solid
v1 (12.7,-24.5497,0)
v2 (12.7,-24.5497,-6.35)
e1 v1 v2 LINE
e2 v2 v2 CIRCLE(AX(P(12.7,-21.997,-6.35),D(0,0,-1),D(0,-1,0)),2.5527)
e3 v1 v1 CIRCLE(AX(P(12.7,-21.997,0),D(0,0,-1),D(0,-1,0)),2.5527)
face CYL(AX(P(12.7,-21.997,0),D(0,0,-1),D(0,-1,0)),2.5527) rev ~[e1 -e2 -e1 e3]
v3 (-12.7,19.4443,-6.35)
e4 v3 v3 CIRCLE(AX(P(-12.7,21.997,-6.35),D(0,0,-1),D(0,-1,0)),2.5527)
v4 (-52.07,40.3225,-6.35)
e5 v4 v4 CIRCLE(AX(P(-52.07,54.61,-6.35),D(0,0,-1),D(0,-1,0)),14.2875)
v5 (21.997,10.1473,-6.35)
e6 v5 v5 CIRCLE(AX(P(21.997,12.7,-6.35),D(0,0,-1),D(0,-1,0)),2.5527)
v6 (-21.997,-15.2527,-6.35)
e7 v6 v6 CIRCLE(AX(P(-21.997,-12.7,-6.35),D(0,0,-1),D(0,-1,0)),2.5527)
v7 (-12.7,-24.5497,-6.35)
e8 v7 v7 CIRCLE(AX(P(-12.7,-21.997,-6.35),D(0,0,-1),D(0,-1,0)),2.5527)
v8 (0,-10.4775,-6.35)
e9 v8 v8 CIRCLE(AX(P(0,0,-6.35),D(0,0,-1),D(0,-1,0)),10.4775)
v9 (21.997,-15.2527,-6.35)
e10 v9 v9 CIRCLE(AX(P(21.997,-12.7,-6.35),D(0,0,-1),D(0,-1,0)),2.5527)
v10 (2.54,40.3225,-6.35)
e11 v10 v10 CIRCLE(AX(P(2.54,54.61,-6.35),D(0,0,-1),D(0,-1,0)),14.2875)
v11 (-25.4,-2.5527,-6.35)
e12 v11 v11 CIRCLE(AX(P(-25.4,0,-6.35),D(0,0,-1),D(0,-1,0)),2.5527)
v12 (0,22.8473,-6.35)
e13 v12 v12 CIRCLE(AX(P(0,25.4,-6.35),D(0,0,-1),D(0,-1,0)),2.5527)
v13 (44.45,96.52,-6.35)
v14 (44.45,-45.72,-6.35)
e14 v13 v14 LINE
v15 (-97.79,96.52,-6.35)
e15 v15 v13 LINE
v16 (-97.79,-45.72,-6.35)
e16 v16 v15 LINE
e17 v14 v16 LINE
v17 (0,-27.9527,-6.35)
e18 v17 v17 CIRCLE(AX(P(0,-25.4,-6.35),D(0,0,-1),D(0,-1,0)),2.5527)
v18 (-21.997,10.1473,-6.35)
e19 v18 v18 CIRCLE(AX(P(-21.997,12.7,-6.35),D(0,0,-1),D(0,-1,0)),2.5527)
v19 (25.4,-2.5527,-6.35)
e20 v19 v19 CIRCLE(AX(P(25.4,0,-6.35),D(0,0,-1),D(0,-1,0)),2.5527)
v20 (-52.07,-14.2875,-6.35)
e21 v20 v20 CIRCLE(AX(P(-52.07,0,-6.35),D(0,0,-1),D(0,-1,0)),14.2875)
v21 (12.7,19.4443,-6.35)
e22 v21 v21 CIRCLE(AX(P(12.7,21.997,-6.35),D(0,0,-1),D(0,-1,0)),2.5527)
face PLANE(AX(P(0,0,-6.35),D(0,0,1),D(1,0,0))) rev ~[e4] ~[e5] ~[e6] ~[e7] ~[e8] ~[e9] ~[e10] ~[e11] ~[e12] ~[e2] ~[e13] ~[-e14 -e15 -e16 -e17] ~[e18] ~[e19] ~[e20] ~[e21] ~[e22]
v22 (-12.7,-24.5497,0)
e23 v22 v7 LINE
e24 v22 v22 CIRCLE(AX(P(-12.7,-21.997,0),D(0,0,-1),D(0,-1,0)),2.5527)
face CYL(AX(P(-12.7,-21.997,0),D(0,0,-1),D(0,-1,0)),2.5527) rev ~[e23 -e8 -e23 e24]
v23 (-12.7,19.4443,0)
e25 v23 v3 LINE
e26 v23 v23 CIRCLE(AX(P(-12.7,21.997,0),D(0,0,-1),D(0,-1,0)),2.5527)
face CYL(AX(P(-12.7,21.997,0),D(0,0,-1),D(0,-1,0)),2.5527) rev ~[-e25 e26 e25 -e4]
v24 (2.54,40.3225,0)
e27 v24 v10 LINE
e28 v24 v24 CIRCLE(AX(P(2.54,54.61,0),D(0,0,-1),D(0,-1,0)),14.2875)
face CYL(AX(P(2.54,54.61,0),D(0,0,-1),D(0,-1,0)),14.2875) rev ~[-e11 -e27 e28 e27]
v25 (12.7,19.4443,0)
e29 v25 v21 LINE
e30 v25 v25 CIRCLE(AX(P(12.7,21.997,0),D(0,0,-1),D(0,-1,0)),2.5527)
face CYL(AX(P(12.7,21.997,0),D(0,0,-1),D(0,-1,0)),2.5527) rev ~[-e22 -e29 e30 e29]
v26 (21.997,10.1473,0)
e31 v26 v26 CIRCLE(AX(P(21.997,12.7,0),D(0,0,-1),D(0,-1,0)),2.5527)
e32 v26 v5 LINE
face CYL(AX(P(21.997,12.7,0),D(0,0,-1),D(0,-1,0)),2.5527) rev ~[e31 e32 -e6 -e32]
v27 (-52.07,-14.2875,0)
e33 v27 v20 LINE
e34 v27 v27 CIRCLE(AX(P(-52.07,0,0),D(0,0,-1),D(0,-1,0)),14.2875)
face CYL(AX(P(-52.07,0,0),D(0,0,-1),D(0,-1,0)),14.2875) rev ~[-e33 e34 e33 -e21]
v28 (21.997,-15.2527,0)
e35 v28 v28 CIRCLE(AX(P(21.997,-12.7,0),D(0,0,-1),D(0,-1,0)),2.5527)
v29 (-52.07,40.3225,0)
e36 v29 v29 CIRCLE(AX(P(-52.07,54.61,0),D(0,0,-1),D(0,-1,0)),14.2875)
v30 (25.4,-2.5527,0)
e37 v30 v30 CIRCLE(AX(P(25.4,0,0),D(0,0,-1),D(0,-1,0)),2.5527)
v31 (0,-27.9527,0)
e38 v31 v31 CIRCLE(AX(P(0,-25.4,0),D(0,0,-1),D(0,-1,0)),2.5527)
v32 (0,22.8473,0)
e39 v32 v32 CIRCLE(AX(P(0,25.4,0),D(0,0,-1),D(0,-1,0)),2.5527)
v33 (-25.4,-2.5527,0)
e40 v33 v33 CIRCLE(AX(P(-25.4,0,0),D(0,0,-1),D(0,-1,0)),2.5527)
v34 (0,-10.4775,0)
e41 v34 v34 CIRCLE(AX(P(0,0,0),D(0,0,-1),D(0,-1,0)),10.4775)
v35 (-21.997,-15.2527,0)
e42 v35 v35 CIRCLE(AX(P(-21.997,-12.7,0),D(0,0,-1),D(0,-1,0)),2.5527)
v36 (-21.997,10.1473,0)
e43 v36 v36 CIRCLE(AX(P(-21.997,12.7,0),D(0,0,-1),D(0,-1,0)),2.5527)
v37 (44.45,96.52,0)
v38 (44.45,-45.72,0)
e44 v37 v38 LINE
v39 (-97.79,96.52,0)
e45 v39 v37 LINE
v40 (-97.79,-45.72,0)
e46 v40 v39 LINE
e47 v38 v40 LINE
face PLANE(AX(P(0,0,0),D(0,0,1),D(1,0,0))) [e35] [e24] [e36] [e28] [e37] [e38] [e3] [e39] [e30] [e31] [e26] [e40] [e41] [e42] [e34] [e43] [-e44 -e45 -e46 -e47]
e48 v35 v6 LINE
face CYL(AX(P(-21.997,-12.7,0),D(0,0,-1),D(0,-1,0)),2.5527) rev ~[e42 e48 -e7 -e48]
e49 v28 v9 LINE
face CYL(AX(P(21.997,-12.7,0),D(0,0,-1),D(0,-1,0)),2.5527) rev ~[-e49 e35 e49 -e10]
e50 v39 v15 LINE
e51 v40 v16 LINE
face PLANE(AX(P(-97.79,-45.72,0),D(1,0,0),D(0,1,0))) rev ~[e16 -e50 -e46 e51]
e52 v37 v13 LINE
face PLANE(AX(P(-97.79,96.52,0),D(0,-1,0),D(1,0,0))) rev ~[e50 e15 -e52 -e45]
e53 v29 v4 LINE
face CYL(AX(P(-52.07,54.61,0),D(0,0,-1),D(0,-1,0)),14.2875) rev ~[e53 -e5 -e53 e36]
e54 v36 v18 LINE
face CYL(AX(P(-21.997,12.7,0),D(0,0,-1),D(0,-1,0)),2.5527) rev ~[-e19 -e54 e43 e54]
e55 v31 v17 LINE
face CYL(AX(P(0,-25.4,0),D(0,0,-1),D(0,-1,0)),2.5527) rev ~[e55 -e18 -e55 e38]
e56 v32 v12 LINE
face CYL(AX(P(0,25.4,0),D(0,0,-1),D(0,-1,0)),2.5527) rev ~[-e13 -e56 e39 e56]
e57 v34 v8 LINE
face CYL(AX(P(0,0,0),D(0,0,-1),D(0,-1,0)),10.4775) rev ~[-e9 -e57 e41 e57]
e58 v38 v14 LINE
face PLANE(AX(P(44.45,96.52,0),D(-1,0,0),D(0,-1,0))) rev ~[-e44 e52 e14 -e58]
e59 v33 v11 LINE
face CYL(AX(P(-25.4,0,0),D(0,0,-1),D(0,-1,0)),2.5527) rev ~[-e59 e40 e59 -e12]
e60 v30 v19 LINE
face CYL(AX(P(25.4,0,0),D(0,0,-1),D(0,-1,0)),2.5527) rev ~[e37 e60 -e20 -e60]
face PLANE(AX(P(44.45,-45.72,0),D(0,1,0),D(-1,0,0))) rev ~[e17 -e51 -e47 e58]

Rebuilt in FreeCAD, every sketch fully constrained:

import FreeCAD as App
import Part
import Sketcher

V = App.Vector
Q = App.Units.Quantity

doc = App.newDocument("Part")
params = doc.addObject("Spreadsheet::Sheet", "Params")
for row, (alias, value) in enumerate([
    ("sketch1_width", "5.6 in"),
    ("pad1_length", "0.25 in"),
    ("sketch2_diameter", "1.125 in"),
    ("hole_diameter", "1.125 in"),
    ("sketch3_diameter", "0.201 in"),
    ("hole2_diameter", "0.201 in"),
    ("sketch4_diameter", "0.825 in"),
    ("hole3_diameter", "0.825 in"),
], start=1):
    params.set(f"A{row}", alias)
    params.set(f"B{row}", "=" + value)
    params.setAlias(f"B{row}", alias)

body = doc.addObject("PartDesign::Body", "Body")

sketch1 = body.newObject("Sketcher::SketchObject", "Sketch")
sketch1.AttachmentSupport = (doc.getObject("XY_Plane"), [""])
sketch1.MapMode = "FlatFace"
sketch1.addGeometry([
    Part.LineSegment(V(44, 97, 0), V(-98, 97, 0)),
    Part.LineSegment(V(-98, 97, 0), V(-98, -46, 0)),
    Part.LineSegment(V(-98, -46, 0), V(44, -46, 0)),
    Part.LineSegment(V(44, -46, 0), V(44, 97, 0)),
], False)
sketch1.addConstraint([
    Sketcher.Constraint("Coincident", 0, 2, 1, 1),
    Sketcher.Constraint("Coincident", 1, 2, 2, 1),
    Sketcher.Constraint("Coincident", 2, 2, 3, 1),
    Sketcher.Constraint("Coincident", 3, 2, 0, 1),
    Sketcher.Constraint("Horizontal", 0),
    Sketcher.Constraint("Vertical", 1),
    Sketcher.Constraint("Horizontal", 2),
    Sketcher.Constraint("Vertical", 3),
    Sketcher.Constraint("Equal", 2, 1),
    Sketcher.Constraint("DistanceX", 0, 2, 0, 1, Q("5.6 in")),
    Sketcher.Constraint("DistanceY", -1, 1, 0, 2, Q("3.8 in")),
    Sketcher.Constraint("DistanceX", 0, 2, -1, 1, Q("3.85 in")),
])
sketch1.setExpression("Constraints[9]", "Params.sketch1_width")
pad1 = body.newObject("PartDesign::Pad", "Pad")
pad1.Profile = sketch1
pad1.setExpression("Length", "Params.pad1_length")
pad1.Reversed = True

sketch2 = body.newObject("Sketcher::SketchObject", "Sketch001")
sketch2.AttachmentSupport = (doc.getObject("XY_Plane"), [""])
sketch2.MapMode = "FlatFace"
sketch2.addGeometry([
    Part.Circle(V(-52, 0, 0), V(0, 0, 1), 14),
    Part.Circle(V(3, 55, 0), V(0, 0, 1), 14),
    Part.Circle(V(-52, 55, 0), V(0, 0, 1), 14),
], False)
sketch2.addConstraint([
    Sketcher.Constraint("Equal", 0, 1),
    Sketcher.Constraint("Equal", 1, 2),
    Sketcher.Constraint("PointOnObject", 0, 3, -1),
    Sketcher.Constraint("Horizontal", 1, 3, 2, 3),
    Sketcher.Constraint("Vertical", 0, 3, 2, 3),
    Sketcher.Constraint("Diameter", 0, Q("1.125 in")),
    Sketcher.Constraint("DistanceX", -1, 1, 1, 3, Q("0.1 in")),
    Sketcher.Constraint("DistanceX", 0, 3, -1, 1, Q("2.05 in")),
    Sketcher.Constraint("DistanceY", -1, 1, 1, 3, Q("2.15 in")),
])
sketch2.setExpression("Constraints[5]", "Params.sketch2_diameter")
doc.recompute()
hole = body.newObject("PartDesign::Hole", "Hole")
hole.Profile = sketch2
hole.ThreadType = "None"
hole.setExpression("Diameter", "Params.hole_diameter")
hole.DepthType = "ThroughAll"

sketch3 = body.newObject("Sketcher::SketchObject", "Sketch002")
sketch3.AttachmentSupport = (doc.getObject("XY_Plane"), [""])
sketch3.MapMode = "FlatFace"
sketch3.addGeometry([
    Part.Circle(V(25.4, 0, 0), V(0, 0, 1), 2.6),
    Part.Circle(V(22, 12.7, 0), V(0, 0, 1), 2.6),
    Part.Circle(V(12.7, 22, 0), V(0, 0, 1), 2.6),
    Part.Circle(V(0, 25.4, 0), V(0, 0, 1), 2.6),
    Part.Circle(V(-12.7, 22, 0), V(0, 0, 1), 2.6),
    Part.Circle(V(-22, 12.7, 0), V(0, 0, 1), 2.6),
    Part.Circle(V(-25.4, 0, 0), V(0, 0, 1), 2.6),
    Part.Circle(V(-22, -12.7, 0), V(0, 0, 1), 2.6),
    Part.Circle(V(-12.7, -22, 0), V(0, 0, 1), 2.6),
    Part.Circle(V(0, -25.4, 0), V(0, 0, 1), 2.6),
    Part.Circle(V(12.7, -22, 0), V(0, 0, 1), 2.6),
    Part.Circle(V(22, -12.7, 0), V(0, 0, 1), 2.6),
], False)
sketch3.addConstraint([
    Sketcher.Constraint("Equal", 0, 1),
    Sketcher.Constraint("Equal", 1, 2),
    Sketcher.Constraint("Equal", 2, 3),
    Sketcher.Constraint("Equal", 3, 4),
    Sketcher.Constraint("Equal", 4, 5),
    Sketcher.Constraint("Equal", 5, 6),
    Sketcher.Constraint("Equal", 6, 7),
    Sketcher.Constraint("Equal", 7, 8),
    Sketcher.Constraint("Equal", 8, 9),
    Sketcher.Constraint("Equal", 9, 10),
    Sketcher.Constraint("Equal", 10, 11),
    Sketcher.Constraint("Symmetric", 0, 3, 6, 3, -1, 1),
    Sketcher.Constraint("Symmetric", 1, 3, 7, 3, -1, 1),
    Sketcher.Constraint("Symmetric", 2, 3, 8, 3, -1, 1),
    Sketcher.Constraint("Symmetric", 3, 3, 9, 3, -1, 1),
    Sketcher.Constraint("Symmetric", 4, 3, 10, 3, -1, 1),
    Sketcher.Constraint("Symmetric", 5, 3, 11, 3, -1, 1),
    Sketcher.Constraint("Symmetric", 2, 3, 4, 3, -2),
    Sketcher.Constraint("Symmetric", 1, 3, 5, 3, -2),
    Sketcher.Constraint("PointOnObject", 0, 3, -1),
    Sketcher.Constraint("PointOnObject", 3, 3, -2),
    Sketcher.Constraint("Diameter", 0, Q("0.201 in")),
    Sketcher.Constraint("DistanceX", -1, 1, 0, 3, Q("1 in")),
    Sketcher.Constraint("DistanceY", -1, 1, 3, 3, Q("1 in")),
    Sketcher.Constraint("DistanceX", 4, 3, 2, 3, Q("1 in")),
    Sketcher.Constraint("DistanceY", 7, 3, 5, 3, Q("1 in")),
    Sketcher.Constraint("DistanceX", -1, 1, 1, 3, 21.997),
    Sketcher.Constraint("DistanceY", -1, 1, 2, 3, 21.997),
])
sketch3.setExpression("Constraints[21]", "Params.sketch3_diameter")
doc.recompute()
hole2 = body.newObject("PartDesign::Hole", "Hole001")
hole2.Profile = sketch3
hole2.ThreadType = "None"
hole2.setExpression("Diameter", "Params.hole2_diameter")
hole2.DepthType = "ThroughAll"

sketch4 = body.newObject("Sketcher::SketchObject", "Sketch003")
sketch4.AttachmentSupport = (doc.getObject("XY_Plane"), [""])
sketch4.MapMode = "FlatFace"
sketch4.addGeometry(Part.Circle(V(0, 0, 0), V(0, 0, 1), 10), False)
sketch4.addConstraint([
    Sketcher.Constraint("Coincident", 0, 3, -1, 1),
    Sketcher.Constraint("Diameter", 0, Q("0.825 in")),
])
sketch4.setExpression("Constraints[1]", "Params.sketch4_diameter")
doc.recompute()
hole3 = body.newObject("PartDesign::Hole", "Hole002")
hole3.Profile = sketch4
hole3.ThreadType = "None"
hole3.setExpression("Diameter", "Params.hole3_diameter")
hole3.DepthType = "ThroughAll"

doc.recompute()
